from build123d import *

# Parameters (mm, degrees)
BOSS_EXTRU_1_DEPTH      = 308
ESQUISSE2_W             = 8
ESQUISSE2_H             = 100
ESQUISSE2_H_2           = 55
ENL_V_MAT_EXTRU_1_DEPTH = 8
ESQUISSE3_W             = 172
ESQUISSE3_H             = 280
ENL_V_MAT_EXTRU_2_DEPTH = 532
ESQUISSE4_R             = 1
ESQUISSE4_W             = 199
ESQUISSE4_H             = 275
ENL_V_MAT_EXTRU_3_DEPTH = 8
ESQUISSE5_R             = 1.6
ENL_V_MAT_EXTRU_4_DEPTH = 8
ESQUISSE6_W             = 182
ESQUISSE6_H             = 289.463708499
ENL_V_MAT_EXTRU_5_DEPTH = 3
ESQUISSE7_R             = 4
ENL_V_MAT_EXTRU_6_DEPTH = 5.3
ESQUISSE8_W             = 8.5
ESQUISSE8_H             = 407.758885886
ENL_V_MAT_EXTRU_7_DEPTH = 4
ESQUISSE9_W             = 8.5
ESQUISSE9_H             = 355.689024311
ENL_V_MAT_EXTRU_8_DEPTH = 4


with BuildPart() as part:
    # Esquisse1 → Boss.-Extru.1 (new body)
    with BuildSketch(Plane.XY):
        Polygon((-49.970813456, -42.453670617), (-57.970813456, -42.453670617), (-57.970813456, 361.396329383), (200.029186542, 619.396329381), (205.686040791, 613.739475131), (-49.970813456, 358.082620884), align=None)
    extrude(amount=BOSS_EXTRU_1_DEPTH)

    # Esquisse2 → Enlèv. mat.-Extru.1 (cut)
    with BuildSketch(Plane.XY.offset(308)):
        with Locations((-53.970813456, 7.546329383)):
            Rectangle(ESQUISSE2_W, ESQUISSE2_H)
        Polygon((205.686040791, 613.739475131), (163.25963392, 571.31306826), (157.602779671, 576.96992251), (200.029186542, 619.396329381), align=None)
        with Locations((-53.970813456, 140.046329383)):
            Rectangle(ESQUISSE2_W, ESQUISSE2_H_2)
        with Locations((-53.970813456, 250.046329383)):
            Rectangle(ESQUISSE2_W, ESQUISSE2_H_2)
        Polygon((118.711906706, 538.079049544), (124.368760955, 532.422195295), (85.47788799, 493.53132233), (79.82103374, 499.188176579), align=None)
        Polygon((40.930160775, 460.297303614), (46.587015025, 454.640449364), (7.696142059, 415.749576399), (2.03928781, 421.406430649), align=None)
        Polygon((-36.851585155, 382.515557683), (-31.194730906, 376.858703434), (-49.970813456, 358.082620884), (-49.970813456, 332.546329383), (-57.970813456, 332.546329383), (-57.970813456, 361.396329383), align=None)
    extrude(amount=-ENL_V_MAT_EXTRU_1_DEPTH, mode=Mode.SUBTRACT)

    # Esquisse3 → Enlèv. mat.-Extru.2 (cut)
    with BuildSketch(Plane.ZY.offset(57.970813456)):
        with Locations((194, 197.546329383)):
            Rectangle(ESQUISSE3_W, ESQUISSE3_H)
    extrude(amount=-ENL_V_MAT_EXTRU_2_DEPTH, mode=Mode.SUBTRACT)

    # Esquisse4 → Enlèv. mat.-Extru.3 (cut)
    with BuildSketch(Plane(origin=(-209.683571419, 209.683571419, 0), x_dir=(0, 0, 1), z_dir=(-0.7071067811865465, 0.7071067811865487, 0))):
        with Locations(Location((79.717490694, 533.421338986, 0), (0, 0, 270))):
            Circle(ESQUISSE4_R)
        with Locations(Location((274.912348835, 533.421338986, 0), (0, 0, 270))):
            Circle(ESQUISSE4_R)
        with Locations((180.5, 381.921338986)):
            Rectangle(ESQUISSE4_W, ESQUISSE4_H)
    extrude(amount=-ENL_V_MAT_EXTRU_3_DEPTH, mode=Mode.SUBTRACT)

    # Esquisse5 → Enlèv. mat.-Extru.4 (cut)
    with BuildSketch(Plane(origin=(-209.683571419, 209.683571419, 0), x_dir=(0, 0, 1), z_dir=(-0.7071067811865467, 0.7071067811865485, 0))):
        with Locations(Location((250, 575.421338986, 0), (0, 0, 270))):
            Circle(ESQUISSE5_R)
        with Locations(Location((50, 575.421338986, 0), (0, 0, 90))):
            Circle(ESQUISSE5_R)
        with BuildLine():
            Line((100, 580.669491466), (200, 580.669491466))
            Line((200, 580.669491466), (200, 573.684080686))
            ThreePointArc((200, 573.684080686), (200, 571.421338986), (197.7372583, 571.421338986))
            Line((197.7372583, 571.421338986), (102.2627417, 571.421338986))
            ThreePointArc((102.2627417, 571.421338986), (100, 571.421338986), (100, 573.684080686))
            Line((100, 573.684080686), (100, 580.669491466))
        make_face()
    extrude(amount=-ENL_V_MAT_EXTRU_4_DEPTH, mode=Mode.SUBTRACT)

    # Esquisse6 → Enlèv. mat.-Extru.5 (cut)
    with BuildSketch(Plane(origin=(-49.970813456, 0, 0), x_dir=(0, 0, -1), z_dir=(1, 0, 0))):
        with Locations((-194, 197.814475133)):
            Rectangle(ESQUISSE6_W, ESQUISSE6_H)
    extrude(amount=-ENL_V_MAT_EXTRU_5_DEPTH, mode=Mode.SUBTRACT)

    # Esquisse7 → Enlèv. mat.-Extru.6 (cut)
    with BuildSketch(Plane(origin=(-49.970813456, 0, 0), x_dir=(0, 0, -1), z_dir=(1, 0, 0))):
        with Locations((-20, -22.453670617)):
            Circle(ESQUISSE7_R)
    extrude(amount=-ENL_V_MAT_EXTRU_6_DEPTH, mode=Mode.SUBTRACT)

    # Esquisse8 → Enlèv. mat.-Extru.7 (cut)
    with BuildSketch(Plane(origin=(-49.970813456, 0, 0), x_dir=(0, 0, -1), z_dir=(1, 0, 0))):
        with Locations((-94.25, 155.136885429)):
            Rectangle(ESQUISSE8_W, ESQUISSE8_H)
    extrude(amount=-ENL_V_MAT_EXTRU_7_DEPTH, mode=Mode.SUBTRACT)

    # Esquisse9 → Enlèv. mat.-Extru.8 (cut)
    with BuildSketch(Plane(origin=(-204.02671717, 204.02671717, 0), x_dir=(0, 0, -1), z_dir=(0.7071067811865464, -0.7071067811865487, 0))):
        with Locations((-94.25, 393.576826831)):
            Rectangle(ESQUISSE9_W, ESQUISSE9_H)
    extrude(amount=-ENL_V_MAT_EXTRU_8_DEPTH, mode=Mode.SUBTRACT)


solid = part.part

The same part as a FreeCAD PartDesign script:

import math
import FreeCAD as App
import Part
import Sketcher
from FreeCAD import Vector
Q = App.Units.Quantity

doc = App.newDocument("Part")
body = doc.addObject("PartDesign::Body", "Body")

# Sketch on XY plane
sketch1 = body.newObject("Sketcher::SketchObject", "Sketch")
sketch1.AttachmentSupport = (doc.getObject("XY_Plane"), [""])
sketch1.MapMode = "FlatFace"
sketch1.addGeometry(Part.LineSegment(Vector(-58, -42, 0), Vector(-50, -42, 0)), False)
sketch1.addGeometry(Part.LineSegment(Vector(-50, -42, 0), Vector(-50, 358, 0)), False)
sketch1.addGeometry(Part.LineSegment(Vector(-50, 358, 0), Vector(206, 614, 0)), False)
sketch1.addGeometry(Part.LineSegment(Vector(206, 614, 0), Vector(200, 619, 0)), False)
sketch1.addGeometry(Part.LineSegment(Vector(200, 619, 0), Vector(-58, 361, 0)), False)
sketch1.addGeometry(Part.LineSegment(Vector(-58, 361, 0), Vector(-58, -42, 0)), False)
sketch1.addConstraint(Sketcher.Constraint("Coincident", 0, 2, 1, 1))
sketch1.addConstraint(Sketcher.Constraint("Coincident", 1, 2, 2, 1))
sketch1.addConstraint(Sketcher.Constraint("Coincident", 2, 2, 3, 1))
sketch1.addConstraint(Sketcher.Constraint("Coincident", 3, 2, 4, 1))
sketch1.addConstraint(Sketcher.Constraint("Coincident", 4, 2, 5, 1))
sketch1.addConstraint(Sketcher.Constraint("Coincident", 5, 2, 0, 1))
sketch1.addConstraint(Sketcher.Constraint("Horizontal", 0))
sketch1.addConstraint(Sketcher.Constraint("Vertical", 1))
sketch1.addConstraint(Sketcher.Constraint("Vertical", 5))
sketch1.addConstraint(Sketcher.Constraint("Perpendicular", 2, 3))
sketch1.addConstraint(Sketcher.Constraint("Perpendicular", 3, 4))
sketch1.addConstraint(Sketcher.Constraint("DistanceX", 0, 1, 0, 2, 8.0))
sketch1.addConstraint(Sketcher.Constraint("Angle", 2, Q("45 deg")))
sketch1.addConstraint(Sketcher.Constraint("Distance", 3, 8.0))
sketch1.addConstraint(Sketcher.Constraint("DistanceX", 1, 2, 3, 2, 250.0))
sketch1.addConstraint(Sketcher.Constraint("DistanceY", 5, 2, 5, 1, 403.85))
sketch1.addConstraint(Sketcher.Constraint("DistanceY", 0, 2, -1, 1, 42.453671))
sketch1.addConstraint(Sketcher.Constraint("DistanceX", -1, 1, 2, 2, 205.686041))
pad1 = body.newObject("PartDesign::Pad", "Pad")
pad1.Profile = sketch1
pad1.Length = 308

# Sketch on XY plane
sketch2 = body.newObject("Sketcher::SketchObject", "Sketch001")
sketch2.AttachmentSupport = (doc.getObject("XY_Plane"), [""])
sketch2.MapMode = "FlatFace"
sketch2.AttachmentOffset = App.Placement(Vector(0, 0, 308), App.Rotation())
sketch2.addGeometry(Part.LineSegment(Vector(-58, 58, 0), Vector(-58, -42, 0)), False)
sketch2.addGeometry(Part.LineSegment(Vector(-58, -42, 0), Vector(-50, -42, 0)), False)
sketch2.addGeometry(Part.LineSegment(Vector(-50, -42, 0), Vector(-50, 58, 0)), False)
sketch2.addGeometry(Part.LineSegment(Vector(-50, 58, 0), Vector(-58, 58, 0)), False)
sketch2.addGeometry(Part.LineSegment(Vector(163, 571, 0), Vector(206, 614, 0)), False)
sketch2.addGeometry(Part.LineSegment(Vector(206, 614, 0), Vector(200, 619, 0)), False)
sketch2.addGeometry(Part.LineSegment(Vector(200, 619, 0), Vector(158, 577, 0)), False)
sketch2.addGeometry(Part.LineSegment(Vector(158, 577, 0), Vector(163, 571, 0)), False)
sketch2.addGeometry(Part.LineSegment(Vector(-58, 168, 0), Vector(-58, 113, 0)), False)
sketch2.addGeometry(Part.LineSegment(Vector(-58, 113, 0), Vector(-50, 113, 0)), False)
sketch2.addGeometry(Part.LineSegment(Vector(-50, 113, 0), Vector(-50, 168, 0)), False)
sketch2.addGeometry(Part.LineSegment(Vector(-50, 168, 0), Vector(-58, 168, 0)), False)
sketch2.addGeometry(Part.LineSegment(Vector(-58, 278, 0), Vector(-58, 223, 0)), False)
sketch2.addGeometry(Part.LineSegment(Vector(-58, 223, 0), Vector(-50, 223, 0)), False)
sketch2.addGeometry(Part.LineSegment(Vector(-50, 223, 0), Vector(-50, 278, 0)), False)
sketch2.addGeometry(Part.LineSegment(Vector(-50, 278, 0), Vector(-58, 278, 0)), False)
sketch2.addGeometry(Part.LineSegment(Vector(124, 532, 0), Vector(119, 538, 0)), False)
sketch2.addGeometry(Part.LineSegment(Vector(119, 538, 0), Vector(80, 499, 0)), False)
sketch2.addGeometry(Part.LineSegment(Vector(80, 499, 0), Vector(85, 494, 0)), False)
sketch2.addGeometry(Part.LineSegment(Vector(85, 494, 0), Vector(124, 532, 0)), False)
sketch2.addGeometry(Part.LineSegment(Vector(47, 455, 0), Vector(41, 460, 0)), False)
sketch2.addGeometry(Part.LineSegment(Vector(41, 460, 0), Vector(2, 421, 0)), False)
sketch2.addGeometry(Part.LineSegment(Vector(2, 421, 0), Vector(8, 416, 0)), False)
sketch2.addGeometry(Part.LineSegment(Vector(8, 416, 0), Vector(47, 455, 0)), False)
sketch2.addGeometry(Part.LineSegment(Vector(-31, 377, 0), Vector(-37, 383, 0)), False)
sketch2.addGeometry(Part.LineSegment(Vector(-37, 383, 0), Vector(-58, 361, 0)), False)
sketch2.addGeometry(Part.LineSegment(Vector(-58, 361, 0), Vector(-58, 333, 0)), False)
sketch2.addGeometry(Part.LineSegment(Vector(-58, 333, 0), Vector(-50, 333, 0)), False)
sketch2.addGeometry(Part.LineSegment(Vector(-50, 333, 0), Vector(-50, 358, 0)), False)
sketch2.addGeometry(Part.LineSegment(Vector(-50, 358, 0), Vector(-31, 377, 0)), False)
sketch2.addConstraint(Sketcher.Constraint("Coincident", 0, 2, 1, 1))
sketch2.addConstraint(Sketcher.Constraint("Coincident", 1, 2, 2, 1))
sketch2.addConstraint(Sketcher.Constraint("Coincident", 2, 2, 3, 1))
sketch2.addConstraint(Sketcher.Constraint("Coincident", 3, 2, 0, 1))
sketch2.addConstraint(Sketcher.Constraint("Coincident", 4, 2, 5, 1))
sketch2.addConstraint(Sketcher.Constraint("Coincident", 5, 2, 6, 1))
sketch2.addConstraint(Sketcher.Constraint("Coincident", 6, 2, 7, 1))
sketch2.addConstraint(Sketcher.Constraint("Coincident", 7, 2, 4, 1))
sketch2.addConstraint(Sketcher.Constraint("Coincident", 8, 2, 9, 1))
sketch2.addConstraint(Sketcher.Constraint("Coincident", 9, 2, 10, 1))
sketch2.addConstraint(Sketcher.Constraint("Coincident", 10, 2, 11, 1))
sketch2.addConstraint(Sketcher.Constraint("Coincident", 11, 2, 8, 1))
sketch2.addConstraint(Sketcher.Constraint("Coincident", 12, 2, 13, 1))
sketch2.addConstraint(Sketcher.Constraint("Coincident", 13, 2, 14, 1))
sketch2.addConstraint(Sketcher.Constraint("Coincident", 14, 2, 15, 1))
sketch2.addConstraint(Sketcher.Constraint("Coincident", 15, 2, 12, 1))
sketch2.addConstraint(Sketcher.Constraint("Coincident", 16, 2, 17, 1))
sketch2.addConstraint(Sketcher.Constraint("Coincident", 17, 2, 18, 1))
sketch2.addConstraint(Sketcher.Constraint("Coincident", 18, 2, 19, 1))
sketch2.addConstraint(Sketcher.Constraint("Coincident", 19, 2, 16, 1))
sketch2.addConstraint(Sketcher.Constraint("Coincident", 20, 2, 21, 1))
sketch2.addConstraint(Sketcher.Constraint("Coincident", 21, 2, 22, 1))
sketch2.addConstraint(Sketcher.Constraint("Coincident", 22, 2, 23, 1))
sketch2.addConstraint(Sketcher.Constraint("Coincident", 23, 2, 20, 1))
sketch2.addConstraint(Sketcher.Constraint("Coincident", 24, 2, 25, 1))
sketch2.addConstraint(Sketcher.Constraint("Coincident", 25, 2, 26, 1))
sketch2.addConstraint(Sketcher.Constraint("Coincident", 26, 2, 27, 1))
sketch2.addConstraint(Sketcher.Constraint("Coincident", 27, 2, 28, 1))
sketch2.addConstraint(Sketcher.Constraint("Coincident", 28, 2, 29, 1))
sketch2.addConstraint(Sketcher.Constraint("Coincident", 29, 2, 24, 1))
sketch2.addConstraint(Sketcher.Constraint("Vertical", 0))
sketch2.addConstraint(Sketcher.Constraint("Horizontal", 1))
sketch2.addConstraint(Sketcher.Constraint("Vertical", 2))
sketch2.addConstraint(Sketcher.Constraint("Horizontal", 3))
sketch2.addConstraint(Sketcher.Constraint("Vertical", 8))
sketch2.addConstraint(Sketcher.Constraint("Horizontal", 9))
sketch2.addConstraint(Sketcher.Constraint("Vertical", 10))
sketch2.addConstraint(Sketcher.Constraint("Horizontal", 11))
sketch2.addConstraint(Sketcher.Constraint("Vertical", 12))
sketch2.addConstraint(Sketcher.Constraint("Horizontal", 13))
sketch2.addConstraint(Sketcher.Constraint("Vertical", 14))
sketch2.addConstraint(Sketcher.Constraint("Horizontal", 15))
sketch2.addConstraint(Sketcher.Constraint("Vertical", 26))
sketch2.addConstraint(Sketcher.Constraint("Horizontal", 27))
sketch2.addConstraint(Sketcher.Constraint("Vertical", 28))
sketch2.addConstraint(Sketcher.Constraint("Perpendicular", 4, 5))
sketch2.addConstraint(Sketcher.Constraint("Perpendicular", 5, 6))
sketch2.addConstraint(Sketcher.Constraint("Perpendicular", 6, 7))
sketch2.addConstraint(Sketcher.Constraint("Parallel", 7, 16))
sketch2.addConstraint(Sketcher.Constraint("Perpendicular", 16, 17))
sketch2.addConstraint(Sketcher.Constraint("Perpendicular", 17, 18))
sketch2.addConstraint(Sketcher.Constraint("Perpendicular", 18, 19))
sketch2.addConstraint(Sketcher.Constraint("Perpendicular", 19, 20))
sketch2.addConstraint(Sketcher.Constraint("Perpendicular", 20, 21))
sketch2.addConstraint(Sketcher.Constraint("Perpendicular", 21, 22))
sketch2.addConstraint(Sketcher.Constraint("Perpendicular", 22, 23))
sketch2.addConstraint(Sketcher.Constraint("Perpendicular", 23, 24))
sketch2.addConstraint(Sketcher.Constraint("Perpendicular", 24, 25))
sketch2.addConstraint(Sketcher.Constraint("Parallel", 25, 29))
sketch2.addConstraint(Sketcher.Constraint("Vertical", 3, 2, 8, 2))
sketch2.addConstraint(Sketcher.Constraint("Vertical", 2, 2, 9, 2))
sketch2.addConstraint(Sketcher.Constraint("Vertical", 11, 2, 12, 2))
sketch2.addConstraint(Sketcher.Constraint("Vertical", 10, 2, 13, 2))
sketch2.addConstraint(Sketcher.Constraint("Vertical", 15, 2, 25, 2))
sketch2.addConstraint(Sketcher.Constraint("Vertical", 14, 2, 27, 2))
sketch2.addConstraint(Sketcher.Constraint("Equal", 10, 12))
sketch2.addConstraint(Sketcher.Constraint("Equal", 7, 16))
sketch2.addConstraint(Sketcher.Constraint("Equal", 18, 20))
sketch2.addConstraint(Sketcher.Constraint("Equal", 19, 21))
sketch2.addConstraint(Sketcher.Constraint("Equal", 22, 24))
sketch2.addConstraint(Sketcher.Constraint("DistanceX", 1, 1, 1, 2, 8.0))
sketch2.addConstraint(Sketcher.Constraint("DistanceY", 0, 2, 0, 1, 100.0))
sketch2.addConstraint(Sketcher.Constraint("DistanceY", 8, 2, 8, 1, 55.0))
sketch2.addConstraint(Sketcher.Constraint("Angle", 4, Q("45 deg")))
sketch2.addConstraint(Sketcher.Constraint("Distance", 4, 60.0))
sketch2.addConstraint(Sketcher.Constraint("Distance", 5, 8.0))
sketch2.addConstraint(Sketcher.Constraint("Distance", 17, 55.0))
sketch2.addConstraint(Sketcher.Constraint("DistanceX", 2, 2, 5, 2, 250.0))
sketch2.addConstraint(Sketcher.Constraint("DistanceY", 3, 2, 8, 2, 55.0))
sketch2.addConstraint(Sketcher.Constraint("DistanceY", 11, 2, 12, 2, 55.0))
sketch2.addConstraint(Sketcher.Constraint("DistanceY", 15, 2, 26, 2, 55.0))
sketch2.addConstraint(Sketcher.Constraint("DistanceY", 26, 2, 26, 1, 28.85))
sketch2.addConstraint(Sketcher.Constraint("DistanceY", 2, 2, 5, 2, 561.85))
sketch2.addConstraint(Sketcher.Constraint("Distance", 25, 29.867099))
sketch2.addConstraint(Sketcher.Constraint("DistanceX", 17, 2, 7, 2, 83.4386))
sketch2.addConstraint(Sketcher.Constraint("DistanceY", 17, 2, 4, 2, 114.551299))
sketch2.addConstraint(Sketcher.Constraint("DistanceX", 20, 2, 19, 2, 83.4386))
sketch2.addConstraint(Sketcher.Constraint("DistanceY", 14, 2, 21, 2, 143.860101))
sketch2.addConstraint(Sketcher.Constraint("DistanceY", 0, 2, -1, 1, 42.453671))
sketch2.addConstraint(Sketcher.Constraint("DistanceX", -1, 1, 4, 2, 205.686041))
pocket1 = body.newObject("PartDesign::Pocket", "Pocket")
pocket1.Profile = sketch2
pocket1.Length = 8

# Sketch on YZ plane
sketch3 = body.newObject("Sketcher::SketchObject", "Sketch002")
sketch3.AttachmentSupport = (doc.getObject("YZ_Plane"), [""])
sketch3.MapMode = "FlatFace"
sketch3.AttachmentOffset = App.Placement(Vector(0, 0, -57.970813), App.Rotation())
sketch3.addGeometry(Part.LineSegment(Vector(338, 108, 0), Vector(58, 108, 0)), False)
sketch3.addGeometry(Part.LineSegment(Vector(58, 108, 0), Vector(58, 280, 0)), False)
sketch3.addGeometry(Part.LineSegment(Vector(58, 280, 0), Vector(338, 280, 0)), False)
sketch3.addGeometry(Part.LineSegment(Vector(338, 280, 0), Vector(338, 108, 0)), False)
sketch3.addConstraint(Sketcher.Constraint("Coincident", 0, 2, 1, 1))
sketch3.addConstraint(Sketcher.Constraint("Coincident", 1, 2, 2, 1))
sketch3.addConstraint(Sketcher.Constraint("Coincident", 2, 2, 3, 1))
sketch3.addConstraint(Sketcher.Constraint("Coincident", 3, 2, 0, 1))
sketch3.addConstraint(Sketcher.Constraint("Horizontal", 0))
sketch3.addConstraint(Sketcher.Constraint("Vertical", 1))
sketch3.addConstraint(Sketcher.Constraint("Horizontal", 2))
sketch3.addConstraint(Sketcher.Constraint("Vertical", 3))
sketch3.addConstraint(Sketcher.Constraint("DistanceX", 0, 2, 0, 1, 280.0))
sketch3.addConstraint(Sketcher.Constraint("DistanceY", 1, 1, 1, 2, 172.0))
sketch3.addConstraint(Sketcher.Constraint("DistanceY", -1, 1, 0, 2, 108.0))
sketch3.addConstraint(Sketcher.Constraint("DistanceX", -1, 1, 0, 2, 57.546329))
pocket2 = body.newObject("PartDesign::Pocket", "Pocket001")
pocket2.Profile = sketch3
pocket2.Length = 532
pocket2.Reversed = True

# Sketch on an angled plane
sketch4 = body.newObject("Sketcher::SketchObject", "Sketch003")
sketch4.Placement = App.Placement(Vector(-209.683571, 209.683571, 0), App.Rotation(Vector(0, 0, 1), Vector(0.707106781, 0.707106781, 0), Vector(-0.707106781, 0.707106781, 0), "ZXY"))
sketch4.addGeometry(Part.Circle(Vector(79.7, 533.4, 0), Vector(0, 0, 1), 1), False)
sketch4.addGeometry(Part.Circle(Vector(274.9, 533.4, 0), Vector(0, 0, 1), 1), False)
sketch4.addGeometry(Part.LineSegment(Vector(81, 519.4, 0), Vector(81, 244.4, 0)), False)
sketch4.addGeometry(Part.LineSegment(Vector(81, 244.4, 0), Vector(280, 244.4, 0)), False)
sketch4.addGeometry(Part.LineSegment(Vector(280, 244.4, 0), Vector(280, 519.4, 0)), False)
sketch4.addGeometry(Part.LineSegment(Vector(280, 519.4, 0), Vector(81, 519.4, 0)), False)
sketch4.addConstraint(Sketcher.Constraint("Coincident", 2, 2, 3, 1))
sketch4.addConstraint(Sketcher.Constraint("Coincident", 3, 2, 4, 1))
sketch4.addConstraint(Sketcher.Constraint("Coincident", 4, 2, 5, 1))
sketch4.addConstraint(Sketcher.Constraint("Coincident", 5, 2, 2, 1))
sketch4.addConstraint(Sketcher.Constraint("Vertical", 2))
sketch4.addConstraint(Sketcher.Constraint("Horizontal", 3))
sketch4.addConstraint(Sketcher.Constraint("Vertical", 4))
sketch4.addConstraint(Sketcher.Constraint("Horizontal", 5))
sketch4.addConstraint(Sketcher.Constraint("Equal", 0, 1))
sketch4.addConstraint(Sketcher.Constraint("Horizontal", 0, 3, 1, 3))
sketch4.addConstraint(Sketcher.Constraint("Diameter", 0, 2.0))
sketch4.addConstraint(Sketcher.Constraint("DistanceX", 3, 1, 3, 2, 199.0))
sketch4.addConstraint(Sketcher.Constraint("DistanceY", 2, 2, 2, 1, 275.0))
sketch4.addConstraint(Sketcher.Constraint("DistanceX", -1, 1, 2, 2, 81.0))
sketch4.addConstraint(Sketcher.Constraint("DistanceY", 2, 2, 0, 3, 289.0))
sketch4.addConstraint(Sketcher.Constraint("DistanceX", -1, 1, 0, 3, 79.717491))
sketch4.addConstraint(Sketcher.Constraint("DistanceY", -1, 1, 0, 3, 533.421339))
sketch4.addConstraint(Sketcher.Constraint("DistanceX", -1, 1, 1, 3, 274.912349))
pocket3 = body.newObject("PartDesign::Pocket", "Pocket002")
pocket3.Profile = sketch4
pocket3.Length = 8

# Sketch on an angled plane
sketch5 = body.newObject("Sketcher::SketchObject", "Sketch004")
sketch5.Placement = App.Placement(Vector(-209.683571, 209.683571, 0), App.Rotation(Vector(0, 0, 1), Vector(0.707106781, 0.707106781, 0), Vector(-0.707106781, 0.707106781, 0), "ZXY"))
sketch5.addGeometry(Part.Circle(Vector(250, 575.4, 0), Vector(0, 0, 1), 1.6), False)
sketch5.addGeometry(Part.Circle(Vector(50, 575.4, 0), Vector(0, 0, 1), 1.6), False)
sketch5.addGeometry(Part.LineSegment(Vector(200, 580.7, 0), Vector(100, 580.7, 0)), False)
sketch5.addGeometry(Part.LineSegment(Vector(100, 580.7, 0), Vector(100, 573.7, 0)), False)
sketch5.addGeometry(Part.ArcOfCircle(Part.Circle(Vector(101.1, 572.6, 0), Vector(0, 0, 1), 1.6), math.radians(135), math.radians(315)), False)
sketch5.addGeometry(Part.LineSegment(Vector(102.3, 571.4, 0), Vector(197.7, 571.4, 0)), False)
sketch5.addGeometry(Part.ArcOfCircle(Part.Circle(Vector(198.9, 572.6, 0), Vector(0, 0, 1), 1.6), math.radians(-135), math.radians(45)), False)
sketch5.addGeometry(Part.LineSegment(Vector(200, 573.7, 0), Vector(200, 580.7, 0)), False)
sketch5.addConstraint(Sketcher.Constraint("Coincident", 2, 2, 3, 1))
sketch5.addConstraint(Sketcher.Constraint("Coincident", 3, 2, 4, 1))
sketch5.addConstraint(Sketcher.Constraint("Coincident", 4, 2, 5, 1))
sketch5.addConstraint(Sketcher.Constraint("Coincident", 5, 2, 6, 1))
sketch5.addConstraint(Sketcher.Constraint("Coincident", 6, 2, 7, 1))
sketch5.addConstraint(Sketcher.Constraint("Coincident", 7, 2, 2, 1))
sketch5.addConstraint(Sketcher.Constraint("Horizontal", 2))
sketch5.addConstraint(Sketcher.Constraint("Vertical", 3))
sketch5.addConstraint(Sketcher.Constraint("Horizontal", 5))
sketch5.addConstraint(Sketcher.Constraint("Vertical", 7))
sketch5.addConstraint(Sketcher.Constraint("Equal", 0, 1))
sketch5.addConstraint(Sketcher.Constraint("Equal", 1, 4))
sketch5.addConstraint(Sketcher.Constraint("Equal", 4, 6))
sketch5.addConstraint(Sketcher.Constraint("Horizontal", 0, 3, 1, 3))
sketch5.addConstraint(Sketcher.Constraint("Horizontal", 4, 3, 6, 3))
sketch5.addConstraint(Sketcher.Constraint("Horizontal", 3, 2, 6, 2))
sketch5.addConstraint(Sketcher.Constraint("Diameter", 0, 3.2))
sketch5.addConstraint(Sketcher.Constraint("DistanceX", 2, 2, 2, 1, 100.0))
sketch5.addConstraint(Sketcher.Constraint("DistanceX", -1, 1, 0, 3, 250.0))
sketch5.addConstraint(Sketcher.Constraint("DistanceX", -1, 1, 1, 3, 50.0))
sketch5.addConstraint(Sketcher.Constraint("DistanceX", -1, 1, 2, 2, 100.0))
sketch5.addConstraint(Sketcher.Constraint("DistanceY", 4, 2, 1, 3, 4.0))
sketch5.addConstraint(Sketcher.Constraint("DistanceY", 3, 2, 3, 1, 6.985411))
sketch5.addConstraint(Sketcher.Constraint("DistanceX", 5, 1, 5, 2, 95.474517))
sketch5.addConstraint(Sketcher.Constraint("DistanceY", -1, 1, 0, 3, 575.421339))
sketch5.addConstraint(Sketcher.Constraint("DistanceX", -1, 1, 4, 3, 101.131371))
pocket4 = body.newObject("PartDesign::Pocket", "Pocket003")
pocket4.Profile = sketch5
pocket4.Length = 8

# Sketch on YZ plane
sketch6 = body.newObject("Sketcher::SketchObject", "Sketch005")
sketch6.AttachmentSupport = (doc.getObject("YZ_Plane"), [""])
sketch6.MapMode = "FlatFace"
sketch6.AttachmentOffset = App.Placement(Vector(0, 0, -49.970813), App.Rotation())
sketch6.addGeometry(Part.LineSegment(Vector(343, 285, 0), Vector(53, 285, 0)), False)
sketch6.addGeometry(Part.LineSegment(Vector(53, 285, 0), Vector(53, 103, 0)), False)
sketch6.addGeometry(Part.LineSegment(Vector(53, 103, 0), Vector(343, 103, 0)), False)
sketch6.addGeometry(Part.LineSegment(Vector(343, 103, 0), Vector(343, 285, 0)), False)
sketch6.addConstraint(Sketcher.Constraint("Coincident", 0, 2, 1, 1))
sketch6.addConstraint(Sketcher.Constraint("Coincident", 1, 2, 2, 1))
sketch6.addConstraint(Sketcher.Constraint("Coincident", 2, 2, 3, 1))
sketch6.addConstraint(Sketcher.Constraint("Coincident", 3, 2, 0, 1))
sketch6.addConstraint(Sketcher.Constraint("Horizontal", 0))
sketch6.addConstraint(Sketcher.Constraint("Vertical", 1))
sketch6.addConstraint(Sketcher.Constraint("Horizontal", 2))
sketch6.addConstraint(Sketcher.Constraint("Vertical", 3))
sketch6.addConstraint(Sketcher.Constraint("DistanceY", 1, 2, 1, 1, 182.0))
sketch6.addConstraint(Sketcher.Constraint("DistanceY", -1, 1, 0, 2, 285.0))
sketch6.addConstraint(Sketcher.Constraint("DistanceX", 0, 2, 0, 1, 289.463708))
sketch6.addConstraint(Sketcher.Constraint("DistanceX", -1, 1, 0, 2, 53.082621))
pocket5 = body.newObject("PartDesign::Pocket", "Pocket004")
pocket5.Profile = sketch6
pocket5.Length = 3

# Sketch on YZ plane
sketch7 = body.newObject("Sketcher::SketchObject", "Sketch006")
sketch7.AttachmentSupport = (doc.getObject("YZ_Plane"), [""])
sketch7.MapMode = "FlatFace"
sketch7.AttachmentOffset = App.Placement(Vector(0, 0, -49.970813), App.Rotation())
sketch7.addGeometry(Part.Circle(Vector(-22.5, 20, 0), Vector(0, 0, 1), 4), False)
sketch7.addConstraint(Sketcher.Constraint("Diameter", 0, 8.0))
sketch7.addConstraint(Sketcher.Constraint("DistanceY", -1, 1, 0, 3, 20.0))
sketch7.addConstraint(Sketcher.Constraint("DistanceX", 0, 3, -1, 1, 22.453671))
pocket6 = body.newObject("PartDesign::Pocket", "Pocket005")
pocket6.Profile = sketch7
pocket6.Length = 5.3

# Sketch on YZ plane
sketch8 = body.newObject("Sketcher::SketchObject", "Sketch007")
sketch8.AttachmentSupport = (doc.getObject("YZ_Plane"), [""])
sketch8.MapMode = "FlatFace"
sketch8.AttachmentOffset = App.Placement(Vector(0, 0, -49.970813), App.Rotation())
sketch8.addGeometry(Part.LineSegment(Vector(359, 98, 0), Vector(-49, 98, 0)), False)
sketch8.addGeometry(Part.LineSegment(Vector(-49, 98, 0), Vector(-49, 90, 0)), False)
sketch8.addGeometry(Part.LineSegment(Vector(-49, 90, 0), Vector(359, 90, 0)), False)
sketch8.addGeometry(Part.LineSegment(Vector(359, 90, 0), Vector(359, 98, 0)), False)
sketch8.addConstraint(Sketcher.Constraint("Coincident", 0, 2, 1, 1))
sketch8.addConstraint(Sketcher.Constraint("Coincident", 1, 2, 2, 1))
sketch8.addConstraint(Sketcher.Constraint("Coincident", 2, 2, 3, 1))
sketch8.addConstraint(Sketcher.Constraint("Coincident", 3, 2, 0, 1))
sketch8.addConstraint(Sketcher.Constraint("Horizontal", 0))
sketch8.addConstraint(Sketcher.Constraint("Vertical", 1))
sketch8.addConstraint(Sketcher.Constraint("Horizontal", 2))
sketch8.addConstraint(Sketcher.Constraint("Vertical", 3))
sketch8.addConstraint(Sketcher.Constraint("DistanceY", 1, 2, 1, 1, 8.5))
sketch8.addConstraint(Sketcher.Constraint("DistanceY", -1, 1, 1, 2, 90.0))
sketch8.addConstraint(Sketcher.Constraint("DistanceX", 0, 2, 0, 1, 407.758886))
sketch8.addConstraint(Sketcher.Constraint("DistanceX", -1, 1, 2, 2, 359.016328))
pocket7 = body.newObject("PartDesign::Pocket", "Pocket006")
pocket7.Profile = sketch8
pocket7.Length = 4

# Sketch on an angled plane
sketch9 = body.newObject("Sketcher::SketchObject", "Sketch008")
sketch9.Placement = App.Placement(Vector(-204.026717, 204.026717, 0), App.Rotation(Vector(0, 0, -1), Vector(0.707106781, 0.707106781, 0), Vector(0.707106781, -0.707106781, 0), "ZXY"))
sketch9.addGeometry(Part.LineSegment(Vector(-98, 571, 0), Vector(-98, 216, 0)), False)
sketch9.addGeometry(Part.LineSegment(Vector(-98, 216, 0), Vector(-90, 216, 0)), False)
sketch9.addGeometry(Part.LineSegment(Vector(-90, 216, 0), Vector(-90, 571, 0)), False)
sketch9.addGeometry(Part.LineSegment(Vector(-90, 571, 0), Vector(-98, 571, 0)), False)
sketch9.addConstraint(Sketcher.Constraint("Coincident", 0, 2, 1, 1))
sketch9.addConstraint(Sketcher.Constraint("Coincident", 1, 2, 2, 1))
sketch9.addConstraint(Sketcher.Constraint("Coincident", 2, 2, 3, 1))
sketch9.addConstraint(Sketcher.Constraint("Coincident", 3, 2, 0, 1))
sketch9.addConstraint(Sketcher.Constraint("Vertical", 0))
sketch9.addConstraint(Sketcher.Constraint("Horizontal", 1))
sketch9.addConstraint(Sketcher.Constraint("Vertical", 2))
sketch9.addConstraint(Sketcher.Constraint("Horizontal", 3))
sketch9.addConstraint(Sketcher.Constraint("DistanceX", 1, 1, 1, 2, 8.5))
sketch9.addConstraint(Sketcher.Constraint("DistanceX", 1, 2, -1, 1, 90.0))
sketch9.addConstraint(Sketcher.Constraint("DistanceY", 0, 2, 0, 1, 355.689024))
sketch9.addConstraint(Sketcher.Constraint("DistanceY", -1, 1, 2, 2, 571.421339))
pocket8 = body.newObject("PartDesign::Pocket", "Pocket007")
pocket8.Profile = sketch9
pocket8.Length = 4

doc.recompute()
